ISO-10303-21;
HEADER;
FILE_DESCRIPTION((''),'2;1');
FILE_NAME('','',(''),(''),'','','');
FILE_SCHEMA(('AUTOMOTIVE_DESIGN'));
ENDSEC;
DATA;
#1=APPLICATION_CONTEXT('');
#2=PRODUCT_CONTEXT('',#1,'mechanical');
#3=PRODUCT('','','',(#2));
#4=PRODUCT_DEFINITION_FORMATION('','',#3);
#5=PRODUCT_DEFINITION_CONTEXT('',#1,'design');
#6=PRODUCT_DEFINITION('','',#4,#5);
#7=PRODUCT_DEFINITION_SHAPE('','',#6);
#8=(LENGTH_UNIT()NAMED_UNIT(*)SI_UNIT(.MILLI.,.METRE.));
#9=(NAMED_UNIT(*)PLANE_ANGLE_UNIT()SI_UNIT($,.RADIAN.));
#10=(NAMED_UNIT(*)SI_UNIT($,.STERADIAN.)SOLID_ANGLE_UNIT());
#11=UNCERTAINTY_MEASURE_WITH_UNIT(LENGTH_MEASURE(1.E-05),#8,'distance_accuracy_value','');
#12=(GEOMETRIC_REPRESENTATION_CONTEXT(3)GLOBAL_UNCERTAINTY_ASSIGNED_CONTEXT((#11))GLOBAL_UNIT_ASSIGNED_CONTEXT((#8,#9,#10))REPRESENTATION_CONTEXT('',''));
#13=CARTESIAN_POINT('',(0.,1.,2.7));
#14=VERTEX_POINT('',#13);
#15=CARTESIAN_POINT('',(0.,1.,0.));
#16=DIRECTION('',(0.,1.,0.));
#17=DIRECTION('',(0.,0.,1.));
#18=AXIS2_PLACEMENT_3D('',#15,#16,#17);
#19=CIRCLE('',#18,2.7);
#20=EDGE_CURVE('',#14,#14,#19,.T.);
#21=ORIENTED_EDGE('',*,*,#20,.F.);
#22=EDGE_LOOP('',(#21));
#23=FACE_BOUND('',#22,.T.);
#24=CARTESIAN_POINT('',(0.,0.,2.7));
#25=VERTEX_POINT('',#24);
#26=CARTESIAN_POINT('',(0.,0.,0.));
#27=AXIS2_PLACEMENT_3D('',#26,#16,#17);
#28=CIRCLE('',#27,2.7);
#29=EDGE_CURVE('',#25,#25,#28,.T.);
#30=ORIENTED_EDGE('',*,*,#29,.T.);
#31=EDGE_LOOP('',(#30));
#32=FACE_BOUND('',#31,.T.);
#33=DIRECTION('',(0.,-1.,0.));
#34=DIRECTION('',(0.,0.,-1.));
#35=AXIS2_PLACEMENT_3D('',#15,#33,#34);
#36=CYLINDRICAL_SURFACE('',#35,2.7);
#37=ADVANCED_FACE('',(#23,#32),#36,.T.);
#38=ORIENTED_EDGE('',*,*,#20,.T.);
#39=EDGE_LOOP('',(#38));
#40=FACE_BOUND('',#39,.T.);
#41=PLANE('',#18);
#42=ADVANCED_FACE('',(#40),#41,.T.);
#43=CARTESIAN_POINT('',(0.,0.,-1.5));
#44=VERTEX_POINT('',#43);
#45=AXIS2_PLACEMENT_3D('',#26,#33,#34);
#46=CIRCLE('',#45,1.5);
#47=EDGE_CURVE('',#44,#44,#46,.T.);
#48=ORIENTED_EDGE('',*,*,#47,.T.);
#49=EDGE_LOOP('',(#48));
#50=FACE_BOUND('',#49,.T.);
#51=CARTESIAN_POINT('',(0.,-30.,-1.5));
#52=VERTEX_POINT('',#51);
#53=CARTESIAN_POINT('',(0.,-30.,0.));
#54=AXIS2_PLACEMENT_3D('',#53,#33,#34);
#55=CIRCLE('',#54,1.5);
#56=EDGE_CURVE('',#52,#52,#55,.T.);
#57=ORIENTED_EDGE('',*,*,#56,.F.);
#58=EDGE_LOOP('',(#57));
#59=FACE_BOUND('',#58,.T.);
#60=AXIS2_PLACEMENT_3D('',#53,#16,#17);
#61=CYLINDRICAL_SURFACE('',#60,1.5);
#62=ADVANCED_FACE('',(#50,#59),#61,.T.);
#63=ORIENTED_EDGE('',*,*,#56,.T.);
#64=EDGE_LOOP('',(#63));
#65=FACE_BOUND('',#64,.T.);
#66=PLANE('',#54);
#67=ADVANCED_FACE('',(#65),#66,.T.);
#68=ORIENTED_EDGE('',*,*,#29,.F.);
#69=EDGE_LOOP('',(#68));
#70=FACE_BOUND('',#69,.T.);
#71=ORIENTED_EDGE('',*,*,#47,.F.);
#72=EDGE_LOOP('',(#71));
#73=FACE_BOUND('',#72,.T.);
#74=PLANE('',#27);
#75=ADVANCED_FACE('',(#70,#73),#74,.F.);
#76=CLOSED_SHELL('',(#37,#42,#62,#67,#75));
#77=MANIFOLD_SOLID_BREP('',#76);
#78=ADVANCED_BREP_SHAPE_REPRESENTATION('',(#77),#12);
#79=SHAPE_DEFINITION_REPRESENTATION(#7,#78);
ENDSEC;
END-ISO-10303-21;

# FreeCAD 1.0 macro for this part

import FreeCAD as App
import Part
import Sketcher

doc = App.newDocument("Part")
body = doc.addObject("PartDesign::Body", "Body")

sketch1 = doc.addObject("Sketcher::SketchObject", "Sketch")
body.addObject(sketch1)
sketch1.AttachmentSupport = (doc.XZ_Plane, [""])
sketch1.MapMode = "FlatFace"
sketch1.addGeometry(Part.Circle(App.Vector(0, 0, 0), App.Vector(0, 0, 1), 2.7), False)
sketch1.addConstraint([
    Sketcher.Constraint("Coincident", 0, 3, -1, 1),
    Sketcher.Constraint("Diameter", 0, 5.4),
])
pad1 = doc.addObject("PartDesign::Pad", "Pad")
body.addObject(pad1)
pad1.Profile = sketch1
pad1.Length = 1
pad1.Reversed = True

sketch2 = doc.addObject("Sketcher::SketchObject", "Sketch001")
body.addObject(sketch2)
sketch2.AttachmentSupport = (doc.XZ_Plane, [""])
sketch2.MapMode = "FlatFace"
sketch2.addGeometry(Part.Circle(App.Vector(0, 0, 0), App.Vector(0, 0, 1), 1.5), False)
sketch2.addConstraint([
    Sketcher.Constraint("Coincident", 0, 3, -1, 1),
    Sketcher.Constraint("Diameter", 0, 3.0),
])
pad2 = doc.addObject("PartDesign::Pad", "Pad001")
body.addObject(pad2)
pad2.Profile = sketch2
pad2.Length = 30

doc.recompute()
